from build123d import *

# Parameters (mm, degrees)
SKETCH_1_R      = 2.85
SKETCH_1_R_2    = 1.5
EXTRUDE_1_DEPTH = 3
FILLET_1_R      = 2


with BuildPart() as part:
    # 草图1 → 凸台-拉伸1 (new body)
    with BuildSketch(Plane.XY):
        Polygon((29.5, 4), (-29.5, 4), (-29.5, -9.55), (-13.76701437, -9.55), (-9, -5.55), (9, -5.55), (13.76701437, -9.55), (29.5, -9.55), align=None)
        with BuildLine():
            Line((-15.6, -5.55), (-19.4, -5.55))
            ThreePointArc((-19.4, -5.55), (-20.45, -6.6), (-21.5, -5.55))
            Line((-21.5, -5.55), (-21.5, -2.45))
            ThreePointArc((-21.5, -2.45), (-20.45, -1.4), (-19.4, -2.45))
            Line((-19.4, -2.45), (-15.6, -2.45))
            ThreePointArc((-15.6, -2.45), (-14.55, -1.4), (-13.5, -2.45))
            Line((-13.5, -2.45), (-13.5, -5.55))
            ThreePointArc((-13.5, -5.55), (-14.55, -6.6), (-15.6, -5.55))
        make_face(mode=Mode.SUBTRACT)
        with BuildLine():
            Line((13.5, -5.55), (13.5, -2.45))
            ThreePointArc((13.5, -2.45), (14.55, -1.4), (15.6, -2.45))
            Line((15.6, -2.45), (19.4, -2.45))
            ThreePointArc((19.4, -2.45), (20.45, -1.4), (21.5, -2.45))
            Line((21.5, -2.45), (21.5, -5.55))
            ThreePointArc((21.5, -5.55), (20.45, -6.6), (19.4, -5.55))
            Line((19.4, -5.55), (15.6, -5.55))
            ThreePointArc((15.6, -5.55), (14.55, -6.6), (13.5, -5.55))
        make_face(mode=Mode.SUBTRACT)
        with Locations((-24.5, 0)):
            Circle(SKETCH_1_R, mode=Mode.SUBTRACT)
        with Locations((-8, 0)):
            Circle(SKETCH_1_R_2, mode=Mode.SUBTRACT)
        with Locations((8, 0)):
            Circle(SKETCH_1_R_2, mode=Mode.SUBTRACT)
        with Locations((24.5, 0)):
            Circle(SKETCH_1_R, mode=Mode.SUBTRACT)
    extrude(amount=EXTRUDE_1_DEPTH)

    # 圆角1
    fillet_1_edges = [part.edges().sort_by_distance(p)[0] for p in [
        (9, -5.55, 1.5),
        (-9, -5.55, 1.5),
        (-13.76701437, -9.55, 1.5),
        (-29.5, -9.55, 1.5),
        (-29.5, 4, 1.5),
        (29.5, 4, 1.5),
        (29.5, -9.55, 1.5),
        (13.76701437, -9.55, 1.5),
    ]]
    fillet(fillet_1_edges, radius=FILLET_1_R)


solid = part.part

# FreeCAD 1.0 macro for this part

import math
import FreeCAD as App
import Part
import Sketcher

V = App.Vector
Q = App.Units.Quantity


def edges_at(feature, points):
    """Names of the edges that pass closest to the given points."""
    edges = feature.Shape.Edges
    near = lambda p: min(range(len(edges)), key=lambda i: edges[i].distToShape(Part.Vertex(*p))[0])
    return sorted({f"Edge{near(p) + 1}" for p in points})


def add_polygon(sketch, points):
    """Adds a closed chain of lines whose ends are joined by coincident constraints."""
    first, n = sketch.GeometryCount, len(points)
    for a, b in zip(points, points[1:] + points[:1]):
        sketch.addGeometry(Part.LineSegment(App.Vector(*a, 0), App.Vector(*b, 0)), False)
    for i in range(n):
        sketch.addConstraint(Sketcher.Constraint("Coincident", first + i, 2, first + (i + 1) % n, 1))

doc = App.newDocument("Part")
params = doc.addObject("Spreadsheet::Sheet", "Params")
for row, (alias, value) in enumerate([
    ("sketch1_diameter", "3 mm"),
    ("sketch1_diameter2", "5.7 mm"),
    ("sketch1_width", "59 mm"),
    ("sketch1_width2", "18 mm"),
    ("sketch1_radius", "1.05 mm"),
    ("pad1_length", "3 mm"),
    ("fillet_radius", "2 mm"),
], start=1):
    params.set(f"A{row}", alias)
    params.set(f"B{row}", "=" + value)
    params.setAlias(f"B{row}", alias)

body = doc.addObject("PartDesign::Body", "Body")

# Sketch on XY plane
sketch1 = doc.addObject("Sketcher::SketchObject", "Sketch")
body.addObject(sketch1)
sketch1.AttachmentSupport = (doc.XY_Plane, [""])
sketch1.MapMode = "FlatFace"
add_polygon(sketch1, [(29.5, 4), (-29.5, 4), (-29.5, -9.6), (-13.8, -9.6), (-9, -5.5), (9, -5.5), (13.8, -9.6), (29.5, -9.6)])  # lines 0-7
sketch1.addGeometry(Part.ArcOfCircle(Part.Circle(V(-14.6, -5.5, 0), V(0, 0, 1), 1.1), math.radians(180), math.radians(360)), False)  # 8
sketch1.addGeometry(Part.LineSegment(V(-15.6, -5.5, 0), V(-19.4, -5.5, 0)), False)  # 9
sketch1.addGeometry(Part.ArcOfCircle(Part.Circle(V(-20.4, -5.5, 0), V(0, 0, 1), 1.1), math.radians(180), math.radians(360)), False)  # 10
sketch1.addGeometry(Part.LineSegment(V(-21.5, -5.5, 0), V(-21.5, -2.5, 0)), False)  # 11
sketch1.addGeometry(Part.ArcOfCircle(Part.Circle(V(-20.4, -2.5, 0), V(0, 0, 1), 1.1), math.radians(0), math.radians(180)), False)  # 12
sketch1.addGeometry(Part.LineSegment(V(-19.4, -2.5, 0), V(-15.6, -2.5, 0)), False)  # 13
sketch1.addGeometry(Part.ArcOfCircle(Part.Circle(V(-14.6, -2.5, 0), V(0, 0, 1), 1.1), math.radians(0), math.radians(180)), False)  # 14
sketch1.addGeometry(Part.LineSegment(V(-13.5, -2.5, 0), V(-13.5, -5.5, 0)), False)  # 15
sketch1.addGeometry(Part.ArcOfCircle(Part.Circle(V(14.6, -5.5, 0), V(0, 0, 1), 1.1), math.radians(180), math.radians(360)), False)  # 16
sketch1.addGeometry(Part.LineSegment(V(13.5, -5.5, 0), V(13.5, -2.5, 0)), False)  # 17
sketch1.addGeometry(Part.ArcOfCircle(Part.Circle(V(14.6, -2.5, 0), V(0, 0, 1), 1.1), math.radians(0), math.radians(180)), False)  # 18
sketch1.addGeometry(Part.LineSegment(V(15.6, -2.5, 0), V(19.4, -2.5, 0)), False)  # 19
sketch1.addGeometry(Part.ArcOfCircle(Part.Circle(V(20.4, -2.5, 0), V(0, 0, 1), 1.1), math.radians(0), math.radians(180)), False)  # 20
sketch1.addGeometry(Part.LineSegment(V(21.5, -2.5, 0), V(21.5, -5.5, 0)), False)  # 21
sketch1.addGeometry(Part.ArcOfCircle(Part.Circle(V(20.4, -5.5, 0), V(0, 0, 1), 1.1), math.radians(180), math.radians(360)), False)  # 22
sketch1.addGeometry(Part.LineSegment(V(19.4, -5.5, 0), V(15.6, -5.5, 0)), False)  # 23
sketch1.addGeometry(Part.Circle(V(-24.5, 0, 0), V(0, 0, 1), 2.9), False)  # 24
sketch1.addGeometry(Part.Circle(V(-8, 0, 0), V(0, 0, 1), 1.5), False)  # 25
sketch1.addGeometry(Part.Circle(V(8, 0, 0), V(0, 0, 1), 1.5), False)  # 26
sketch1.addGeometry(Part.Circle(V(24.5, 0, 0), V(0, 0, 1), 2.9), False)  # 27
sketch1.addConstraint([
    Sketcher.Constraint("Coincident", 8, 1, 9, 1),
    Sketcher.Constraint("Coincident", 9, 2, 10, 2),
    Sketcher.Constraint("Tangent", 10, 1, 11, 1),
    Sketcher.Constraint("Tangent", 11, 2, 12, 2),
    Sketcher.Constraint("Coincident", 12, 1, 13, 1),
    Sketcher.Constraint("Coincident", 13, 2, 14, 2),
    Sketcher.Constraint("Tangent", 14, 1, 15, 1),
    Sketcher.Constraint("Tangent", 15, 2, 8, 2),
    Sketcher.Constraint("Tangent", 16, 1, 17, 1),
    Sketcher.Constraint("Tangent", 17, 2, 18, 2),
    Sketcher.Constraint("Coincident", 18, 1, 19, 1),
    Sketcher.Constraint("Coincident", 19, 2, 20, 2),
    Sketcher.Constraint("Tangent", 20, 1, 21, 1),
    Sketcher.Constraint("Tangent", 21, 2, 22, 2),
    Sketcher.Constraint("Coincident", 22, 1, 23, 1),
    Sketcher.Constraint("Coincident", 23, 2, 16, 2),
    Sketcher.Constraint("Horizontal", 0),
    Sketcher.Constraint("Vertical", 1),
    Sketcher.Constraint("Horizontal", 2),
    Sketcher.Constraint("Horizontal", 4),
    Sketcher.Constraint("Horizontal", 6),
    Sketcher.Constraint("Vertical", 7),
    Sketcher.Constraint("Horizontal", 9),
    Sketcher.Constraint("Vertical", 11),
    Sketcher.Constraint("Horizontal", 13),
    Sketcher.Constraint("Vertical", 15),
    Sketcher.Constraint("Vertical", 17),
    Sketcher.Constraint("Horizontal", 19),
    Sketcher.Constraint("Vertical", 21),
    Sketcher.Constraint("Horizontal", 23),
    Sketcher.Constraint("Equal", 8, 10),
    Sketcher.Constraint("Equal", 10, 12),
    Sketcher.Constraint("Equal", 12, 14),
    Sketcher.Constraint("Equal", 14, 16),
    Sketcher.Constraint("Equal", 16, 18),
    Sketcher.Constraint("Equal", 18, 20),
    Sketcher.Constraint("Equal", 20, 22),
    Sketcher.Constraint("Equal", 25, 26),
    Sketcher.Constraint("Equal", 24, 27),
    Sketcher.Constraint("Symmetric", 25, 3, 26, 3, -1, 1),
    Sketcher.Constraint("Symmetric", 24, 3, 27, 3, -1, 1),
    Sketcher.Constraint("Symmetric", 8, 3, 16, 3, -2),
    Sketcher.Constraint("Symmetric", 12, 3, 20, 3, -2),
    Sketcher.Constraint("Symmetric", 2, 2, 5, 2, -2),
    Sketcher.Constraint("PointOnObject", 24, 3, -1),
    Sketcher.Constraint("PointOnObject", 25, 3, -1),
    Sketcher.Constraint("Horizontal", 8, 3, 10, 3),
    Sketcher.Constraint("Horizontal", 12, 3, 14, 3),
    Sketcher.Constraint("Horizontal", 14, 3, 18, 3),
    Sketcher.Constraint("Horizontal", 16, 3, 22, 3),
    Sketcher.Constraint("Horizontal", 22, 3, 3, 2),
    Sketcher.Constraint("Horizontal", 4, 2, 8, 1),
    Sketcher.Constraint("Horizontal", 11, 2, 12, 1),
    Sketcher.Constraint("Horizontal", 17, 2, 18, 1),
    Sketcher.Constraint("Horizontal", 21, 2, 22, 1),
    Sketcher.Constraint("Equal", 2, 6),
    Sketcher.Constraint("Equal", 3, 5),
    Sketcher.Constraint("Diameter", 25, 3.0),
    Sketcher.Constraint("Diameter", 24, 5.7),
    Sketcher.Constraint("DistanceX", 0, 2, 0, 1, 59.0),
    Sketcher.Constraint("DistanceX", 4, 1, 4, 2, 18.0),
    Sketcher.Constraint("Angle", 3, Q("40 deg")),
    Sketcher.Constraint("Radius", 8, 1.05),
    Sketcher.Constraint("DistanceX", 9, 2, 9, 1, 3.8),
    Sketcher.Constraint("DistanceY", 11, 1, 11, 2, 3.1),
    Sketcher.Constraint("DistanceX", 25, 3, -1, 1, 8.0),
    Sketcher.Constraint("DistanceY", -1, 1, 0, 2, 4.0),
    Sketcher.Constraint("DistanceX", 10, 3, 16, 3, 35.0),
    Sketcher.Constraint("DistanceX", 0, 2, 24, 3, 5.0),
    Sketcher.Constraint("DistanceY", 1, 2, 10, 3, 4.0),
    Sketcher.Constraint("DistanceY", 1, 2, 1, 1, 13.55),
])
sketch1.setExpression("Constraints[65]", "Params.sketch1_diameter")
sketch1.setExpression("Constraints[66]", "Params.sketch1_diameter2")
sketch1.setExpression("Constraints[67]", "Params.sketch1_width")
sketch1.setExpression("Constraints[68]", "Params.sketch1_width2")
sketch1.setExpression("Constraints[70]", "Params.sketch1_radius")
pad1 = doc.addObject("PartDesign::Pad", "Pad")
body.addObject(pad1)
pad1.Profile = sketch1
pad1.setExpression("Length", "Params.pad1_length")
doc.recompute()

fillet = doc.addObject("PartDesign::Fillet", "Fillet")
body.addObject(fillet)
fillet.Base = (pad1, edges_at(pad1, [
    (9, -5.55, 1.5),
    (-9, -5.55, 1.5),
    (-13.767, -9.55, 1.5),
    (-29.5, -9.55, 1.5),
    (-29.5, 4, 1.5),
    (29.5, 4, 1.5),
    (29.5, -9.55, 1.5),
    (13.767, -9.55, 1.5),
]))
fillet.setExpression("Radius", "Params.fillet_radius")

doc.recompute()
